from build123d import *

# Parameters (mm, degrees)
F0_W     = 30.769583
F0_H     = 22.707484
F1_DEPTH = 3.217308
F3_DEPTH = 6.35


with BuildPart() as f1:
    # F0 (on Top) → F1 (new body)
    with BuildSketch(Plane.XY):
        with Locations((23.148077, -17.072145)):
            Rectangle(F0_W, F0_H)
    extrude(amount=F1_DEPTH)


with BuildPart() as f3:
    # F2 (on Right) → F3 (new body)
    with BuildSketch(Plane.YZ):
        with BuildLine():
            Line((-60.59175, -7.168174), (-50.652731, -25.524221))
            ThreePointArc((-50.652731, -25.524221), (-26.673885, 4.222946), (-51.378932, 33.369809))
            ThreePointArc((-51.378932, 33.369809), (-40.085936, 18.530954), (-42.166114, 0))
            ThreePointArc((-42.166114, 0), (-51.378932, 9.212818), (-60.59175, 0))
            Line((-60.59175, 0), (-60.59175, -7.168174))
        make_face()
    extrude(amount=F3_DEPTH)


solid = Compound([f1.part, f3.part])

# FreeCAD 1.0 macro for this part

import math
import FreeCAD as App
import Part
import Sketcher
Q = App.Units.Quantity


def add_polygon(sketch, points):
    """Adds a closed chain of lines whose ends are joined by coincident constraints."""
    first, n = sketch.GeometryCount, len(points)
    for a, b in zip(points, points[1:] + points[:1]):
        sketch.addGeometry(Part.LineSegment(App.Vector(*a, 0), App.Vector(*b, 0)), False)
    for i in range(n):
        sketch.addConstraint(Sketcher.Constraint("Coincident", first + i, 2, first + (i + 1) % n, 1))

doc = App.newDocument("Part")
body = doc.addObject("PartDesign::Body", "Body")

# Sketch on XY plane
sketch1 = body.newObject("Sketcher::SketchObject", "Sketch")
sketch1.AttachmentSupport = (doc.getObject("XY_Plane"), [""])
sketch1.MapMode = "FlatFace"
add_polygon(sketch1, [(8, -6), (8, -28), (39, -28), (39, -6)])  # lines 0-3
sketch1.addConstraint(Sketcher.Constraint("Vertical", 0))
sketch1.addConstraint(Sketcher.Constraint("Horizontal", 1))
sketch1.addConstraint(Sketcher.Constraint("Vertical", 2))
sketch1.addConstraint(Sketcher.Constraint("Horizontal", 3))
sketch1.addConstraint(Sketcher.Constraint("DistanceX", 1, 1, 1, 2, 30.769583))
sketch1.addConstraint(Sketcher.Constraint("DistanceY", 0, 2, 0, 1, 22.707484))
sketch1.addConstraint(Sketcher.Constraint("DistanceX", -1, 1, 1, 2, 38.532868))
sketch1.addConstraint(Sketcher.Constraint("DistanceY", 0, 2, -1, 1, 28.425887))
pad1 = body.newObject("PartDesign::Pad", "Pad")
pad1.Profile = sketch1
pad1.Length = 3.217308
body2 = doc.addObject("PartDesign::Body", "Body001")

# Sketch on YZ plane
sketch2 = body2.newObject("Sketcher::SketchObject", "Sketch001")
sketch2.AttachmentSupport = (doc.getObject("YZ_Plane001"), [""])
sketch2.MapMode = "FlatFace"
sketch2.addGeometry(Part.LineSegment(App.Vector(-61, -7, 0), App.Vector(-51, -26, 0)), False)
sketch2.addGeometry(Part.ArcOfCircle(Part.Circle(App.Vector(-57, 4, 0), App.Vector(0, 0, 1), 30), math.radians(-78), math.radians(80)), False)
sketch2.addGeometry(Part.ArcOfCircle(Part.Circle(App.Vector(-64, 12, 0), App.Vector(0, 0, 1), 25), math.radians(-28), math.radians(59)), False)
sketch2.addGeometry(Part.ArcOfCircle(Part.Circle(App.Vector(-51, 0, 0), App.Vector(0, 0, 1), 9), math.radians(0), math.radians(180)), False)
sketch2.addGeometry(Part.LineSegment(App.Vector(-61, 0, 0), App.Vector(-61, -7, 0)), False)
sketch2.addConstraint(Sketcher.Constraint("Coincident", 0, 2, 1, 1))
sketch2.addConstraint(Sketcher.Constraint("Coincident", 1, 2, 2, 2))
sketch2.addConstraint(Sketcher.Constraint("Coincident", 2, 1, 3, 1))
sketch2.addConstraint(Sketcher.Constraint("Tangent", 3, 2, 4, 1))
sketch2.addConstraint(Sketcher.Constraint("Coincident", 4, 2, 0, 1))
sketch2.addConstraint(Sketcher.Constraint("Vertical", 4))
sketch2.addConstraint(Sketcher.Constraint("PointOnObject", 3, 3, -1))
sketch2.addConstraint(Sketcher.Constraint("PointOnObject", 2, 1, -1))
sketch2.addConstraint(Sketcher.Constraint("Vertical", 3, 3, 1, 2))
sketch2.addConstraint(Sketcher.Constraint("Radius", 1, 29.98462))
sketch2.addConstraint(Sketcher.Constraint("Radius", 2, 25.063895))
sketch2.addConstraint(Sketcher.Constraint("Radius", 3, 9.212818))
sketch2.addConstraint(Sketcher.Constraint("DistanceX", 3, 2, 0, 2, Q("0.3913 in")))
sketch2.addConstraint(Sketcher.Constraint("DistanceY", 4, 2, 4, 1, 7.168174))
sketch2.addConstraint(Sketcher.Constraint("DistanceX", 2, 3, -1, 1, 64.245981))
sketch2.addConstraint(Sketcher.Constraint("DistanceY", -1, 1, 2, 3, 11.86079))
sketch2.addConstraint(Sketcher.Constraint("DistanceY", 0, 2, -1, 1, 25.524221))
pad2 = body2.newObject("PartDesign::Pad", "Pad001")
pad2.Profile = sketch2
pad2.Length = Q("0.25 in")

doc.recompute()
